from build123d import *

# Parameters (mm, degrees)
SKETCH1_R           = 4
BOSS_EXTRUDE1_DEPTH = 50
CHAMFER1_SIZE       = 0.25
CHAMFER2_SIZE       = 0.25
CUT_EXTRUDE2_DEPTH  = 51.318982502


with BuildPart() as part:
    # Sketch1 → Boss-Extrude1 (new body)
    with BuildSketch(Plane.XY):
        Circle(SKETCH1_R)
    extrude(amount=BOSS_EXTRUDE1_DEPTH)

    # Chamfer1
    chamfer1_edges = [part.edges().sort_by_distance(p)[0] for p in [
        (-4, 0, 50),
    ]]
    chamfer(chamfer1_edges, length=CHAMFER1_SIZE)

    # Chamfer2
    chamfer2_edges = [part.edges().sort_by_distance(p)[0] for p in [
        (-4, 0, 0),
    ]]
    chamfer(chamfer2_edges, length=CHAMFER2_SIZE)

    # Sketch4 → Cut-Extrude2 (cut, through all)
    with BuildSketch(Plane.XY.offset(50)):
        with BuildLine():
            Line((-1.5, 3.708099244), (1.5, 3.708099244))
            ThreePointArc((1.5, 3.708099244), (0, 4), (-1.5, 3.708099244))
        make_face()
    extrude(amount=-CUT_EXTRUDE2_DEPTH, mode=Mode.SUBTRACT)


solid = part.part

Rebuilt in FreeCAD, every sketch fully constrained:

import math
import FreeCAD as App
import Part
import Sketcher

V = App.Vector


def edges_at(feature, points):
    """Names of the edges that pass closest to the given points."""
    edges = feature.Shape.Edges
    near = lambda p: min(range(len(edges)), key=lambda i: edges[i].distToShape(Part.Vertex(*p))[0])
    return sorted({f"Edge{near(p) + 1}" for p in points})

doc = App.newDocument("Part")
params = doc.addObject("Spreadsheet::Sheet", "Params")
for row, (alias, value) in enumerate([
    ("sketch1_diameter", "8 mm"),
    ("pad1_length", "50 mm"),
    ("chamfer_size", "0.25 mm"),
    ("chamfer2_size", "0.25 mm"),
    ("sketch2_radius", "4 mm"),
    ("sketch2_width", "3 mm"),
], start=1):
    params.set(f"A{row}", alias)
    params.set(f"B{row}", "=" + value)
    params.setAlias(f"B{row}", alias)

body = doc.addObject("PartDesign::Body", "Body")

# Sketch on XY plane
sketch1 = body.newObject("Sketcher::SketchObject", "Sketch")
sketch1.AttachmentSupport = (doc.getObject("XY_Plane"), [""])
sketch1.MapMode = "FlatFace"
sketch1.addGeometry(Part.Circle(V(0, 0, 0), V(0, 0, 1), 4), False)
sketch1.addConstraint([
    Sketcher.Constraint("Coincident", 0, 3, -1, 1),
    Sketcher.Constraint("Diameter", 0, 8.0),
])
sketch1.setExpression("Constraints[1]", "Params.sketch1_diameter")
pad1 = body.newObject("PartDesign::Pad", "Pad")
pad1.Profile = sketch1
pad1.setExpression("Length", "Params.pad1_length")
doc.recompute()

chamfer = body.newObject("PartDesign::Chamfer", "Chamfer")
chamfer.Base = (pad1, edges_at(pad1, [(-4, 0, 50)]))
chamfer.setExpression("Size", "Params.chamfer_size")
doc.recompute()

chamfer2 = body.newObject("PartDesign::Chamfer", "Chamfer001")
chamfer2.Base = (chamfer, edges_at(chamfer, [(-4, 0, 0)]))
chamfer2.setExpression("Size", "Params.chamfer2_size")

# Sketch on XY plane
sketch2 = body.newObject("Sketcher::SketchObject", "Sketch001")
sketch2.AttachmentSupport = (doc.getObject("XY_Plane"), [""])
sketch2.MapMode = "FlatFace"
sketch2.AttachmentOffset = App.Placement(V(0, 0, 50), App.Rotation())
sketch2.addGeometry([
    Part.LineSegment(V(-1.5, 3.7, 0), V(1.5, 3.7, 0)),
    Part.ArcOfCircle(Part.Circle(V(0, 0, 0), V(0, 0, 1), 4), math.radians(68), math.radians(112)),
], False)
sketch2.addConstraint([
    Sketcher.Constraint("Coincident", 0, 1, 1, 2),
    Sketcher.Constraint("Coincident", 1, 1, 0, 2),
    Sketcher.Constraint("Horizontal", 0),
    Sketcher.Constraint("Coincident", 1, 3, -1, 1),
    Sketcher.Constraint("Radius", 1, 4.0),
    Sketcher.Constraint("DistanceX", 0, 1, 0, 2, 3.0),
])
sketch2.setExpression("Constraints[4]", "Params.sketch2_radius")
sketch2.setExpression("Constraints[5]", "Params.sketch2_width")
pocket1 = body.newObject("PartDesign::Pocket", "Pocket")
pocket1.Profile = sketch2
pocket1.Type = "ThroughAll"

doc.recompute()
